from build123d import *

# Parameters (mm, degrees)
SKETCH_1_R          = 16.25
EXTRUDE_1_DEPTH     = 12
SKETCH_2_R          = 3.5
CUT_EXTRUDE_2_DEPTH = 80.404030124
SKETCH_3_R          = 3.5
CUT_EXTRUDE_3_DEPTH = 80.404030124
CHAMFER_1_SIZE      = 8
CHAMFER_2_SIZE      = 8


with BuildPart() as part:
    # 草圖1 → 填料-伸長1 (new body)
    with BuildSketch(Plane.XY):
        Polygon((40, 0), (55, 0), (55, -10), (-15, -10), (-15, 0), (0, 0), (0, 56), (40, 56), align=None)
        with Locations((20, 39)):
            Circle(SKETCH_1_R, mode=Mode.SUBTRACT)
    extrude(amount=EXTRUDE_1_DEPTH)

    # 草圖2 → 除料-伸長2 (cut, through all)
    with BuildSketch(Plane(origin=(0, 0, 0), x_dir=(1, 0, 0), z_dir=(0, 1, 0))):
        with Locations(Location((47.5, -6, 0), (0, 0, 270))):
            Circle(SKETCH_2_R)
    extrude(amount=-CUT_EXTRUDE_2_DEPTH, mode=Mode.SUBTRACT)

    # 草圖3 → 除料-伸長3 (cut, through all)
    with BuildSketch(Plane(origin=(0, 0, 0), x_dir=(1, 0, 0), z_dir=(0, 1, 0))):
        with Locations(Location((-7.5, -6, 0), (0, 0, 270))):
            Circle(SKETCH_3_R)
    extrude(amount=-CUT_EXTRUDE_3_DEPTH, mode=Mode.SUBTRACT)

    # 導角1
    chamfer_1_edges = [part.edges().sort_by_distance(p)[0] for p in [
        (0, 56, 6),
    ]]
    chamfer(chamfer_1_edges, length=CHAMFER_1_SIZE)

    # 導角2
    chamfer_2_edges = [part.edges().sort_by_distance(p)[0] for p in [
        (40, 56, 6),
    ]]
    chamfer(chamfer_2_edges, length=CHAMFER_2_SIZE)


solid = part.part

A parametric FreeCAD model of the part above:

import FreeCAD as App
import Part
import Sketcher

V = App.Vector


def edges_at(feature, points):
    """Names of the edges that pass closest to the given points."""
    edges = feature.Shape.Edges
    near = lambda p: min(range(len(edges)), key=lambda i: edges[i].distToShape(Part.Vertex(*p))[0])
    return sorted({f"Edge{near(p) + 1}" for p in points})

doc = App.newDocument("Part")
params = doc.addObject("Spreadsheet::Sheet", "Params")
for row, (alias, value) in enumerate([
    ("sketch1_diameter", "32.5 mm"),
    ("sketch1_width", "15 mm"),
    ("sketch1_width2", "40 mm"),
    ("sketch1_height", "56 mm"),
    ("sketch1_height2", "10 mm"),
    ("pad1_length", "12 mm"),
    ("sketch2_diameter", "7 mm"),
    ("sketch3_diameter", "7 mm"),
    ("chamfer_size", "8 mm"),
    ("chamfer2_size", "8 mm"),
], start=1):
    params.set(f"A{row}", alias)
    params.set(f"B{row}", "=" + value)
    params.setAlias(f"B{row}", alias)

body = doc.addObject("PartDesign::Body", "Body")

# Sketch on XY plane
sketch1 = doc.addObject("Sketcher::SketchObject", "Sketch")
body.addObject(sketch1)
sketch1.AttachmentSupport = (doc.XY_Plane, [""])
sketch1.MapMode = "FlatFace"
sketch1.addGeometry([
    Part.LineSegment(V(55, 0, 0), V(40, 0, 0)),  # 0
    Part.LineSegment(V(40, 0, 0), V(40, 56, 0)),  # 1
    Part.LineSegment(V(40, 56, 0), V(0, 56, 0)),  # 2
    Part.LineSegment(V(0, 56, 0), V(0, 0, 0)),  # 3
    Part.LineSegment(V(0, 0, 0), V(-15, 0, 0)),  # 4
    Part.LineSegment(V(-15, 0, 0), V(-15, -10, 0)),  # 5
    Part.LineSegment(V(-15, -10, 0), V(55, -10, 0)),  # 6
    Part.LineSegment(V(55, -10, 0), V(55, 0, 0)),  # 7
    Part.Circle(V(20, 39, 0), V(0, 0, 1), 16),  # 8
], False)
sketch1.addConstraint([
    Sketcher.Constraint("Coincident", 0, 2, 1, 1),
    Sketcher.Constraint("Coincident", 1, 2, 2, 1),
    Sketcher.Constraint("Coincident", 2, 2, 3, 1),
    Sketcher.Constraint("Coincident", 3, 2, 4, 1),
    Sketcher.Constraint("Coincident", 4, 2, 5, 1),
    Sketcher.Constraint("Coincident", 5, 2, 6, 1),
    Sketcher.Constraint("Coincident", 6, 2, 7, 1),
    Sketcher.Constraint("Coincident", 7, 2, 0, 1),
    Sketcher.Constraint("Horizontal", 0),
    Sketcher.Constraint("Vertical", 1),
    Sketcher.Constraint("Horizontal", 2),
    Sketcher.Constraint("Vertical", 3),
    Sketcher.Constraint("Horizontal", 4),
    Sketcher.Constraint("Vertical", 5),
    Sketcher.Constraint("Horizontal", 6),
    Sketcher.Constraint("Vertical", 7),
    Sketcher.Constraint("Coincident", 3, 2, -1, 1),
    Sketcher.Constraint("PointOnObject", 0, 2, -1),
    Sketcher.Constraint("Equal", 0, 4),
    Sketcher.Constraint("Diameter", 8, 32.5),
    Sketcher.Constraint("DistanceX", 0, 2, 0, 1, 15.0),
    Sketcher.Constraint("DistanceX", 2, 2, 2, 1, 40.0),
    Sketcher.Constraint("DistanceY", 1, 1, 1, 2, 56.0),
    Sketcher.Constraint("DistanceY", 5, 2, 5, 1, 10.0),
    Sketcher.Constraint("DistanceX", -1, 1, 8, 3, 20.0),
    Sketcher.Constraint("DistanceY", -1, 1, 8, 3, 39.0),
])
sketch1.setExpression("Constraints[19]", "Params.sketch1_diameter")
sketch1.setExpression("Constraints[20]", "Params.sketch1_width")
sketch1.setExpression("Constraints[21]", "Params.sketch1_width2")
sketch1.setExpression("Constraints[22]", "Params.sketch1_height")
sketch1.setExpression("Constraints[23]", "Params.sketch1_height2")
pad1 = doc.addObject("PartDesign::Pad", "Pad")
body.addObject(pad1)
pad1.Profile = sketch1
pad1.setExpression("Length", "Params.pad1_length")

# Sketch on XZ plane
sketch2 = doc.addObject("Sketcher::SketchObject", "Sketch001")
body.addObject(sketch2)
sketch2.AttachmentSupport = (doc.XZ_Plane, [""])
sketch2.MapMode = "FlatFace"
sketch2.addGeometry(Part.Circle(V(47.5, 6, 0), V(0, 0, 1), 3.5), False)
sketch2.addConstraint([
    Sketcher.Constraint("Diameter", 0, 7.0),
    Sketcher.Constraint("DistanceY", -1, 1, 0, 3, 6.0),
    Sketcher.Constraint("DistanceX", -1, 1, 0, 3, 47.5),
])
sketch2.setExpression("Constraints[0]", "Params.sketch2_diameter")
pocket1 = doc.addObject("PartDesign::Pocket", "Pocket")
body.addObject(pocket1)
pocket1.Profile = sketch2
pocket1.Type = "ThroughAll"
pocket1.Reversed = True

# Sketch on XZ plane
sketch3 = doc.addObject("Sketcher::SketchObject", "Sketch002")
body.addObject(sketch3)
sketch3.AttachmentSupport = (doc.XZ_Plane, [""])
sketch3.MapMode = "FlatFace"
sketch3.addGeometry(Part.Circle(V(-7.5, 6, 0), V(0, 0, 1), 3.5), False)
sketch3.addConstraint([
    Sketcher.Constraint("Diameter", 0, 7.0),
    Sketcher.Constraint("DistanceY", -1, 1, 0, 3, 6.0),
    Sketcher.Constraint("DistanceX", 0, 3, -1, 1, 7.5),
])
sketch3.setExpression("Constraints[0]", "Params.sketch3_diameter")
pocket2 = doc.addObject("PartDesign::Pocket", "Pocket001")
body.addObject(pocket2)
pocket2.Profile = sketch3
pocket2.Type = "ThroughAll"
pocket2.Reversed = True
doc.recompute()

chamfer = doc.addObject("PartDesign::Chamfer", "Chamfer")
body.addObject(chamfer)
chamfer.Base = (pocket2, edges_at(pocket2, [(0, 56, 6)]))
chamfer.setExpression("Size", "Params.chamfer_size")
doc.recompute()

chamfer2 = doc.addObject("PartDesign::Chamfer", "Chamfer001")
body.addObject(chamfer2)
chamfer2.Base = (chamfer, edges_at(chamfer, [(40, 56, 6)]))
chamfer2.setExpression("Size", "Params.chamfer2_size")

doc.recompute()
